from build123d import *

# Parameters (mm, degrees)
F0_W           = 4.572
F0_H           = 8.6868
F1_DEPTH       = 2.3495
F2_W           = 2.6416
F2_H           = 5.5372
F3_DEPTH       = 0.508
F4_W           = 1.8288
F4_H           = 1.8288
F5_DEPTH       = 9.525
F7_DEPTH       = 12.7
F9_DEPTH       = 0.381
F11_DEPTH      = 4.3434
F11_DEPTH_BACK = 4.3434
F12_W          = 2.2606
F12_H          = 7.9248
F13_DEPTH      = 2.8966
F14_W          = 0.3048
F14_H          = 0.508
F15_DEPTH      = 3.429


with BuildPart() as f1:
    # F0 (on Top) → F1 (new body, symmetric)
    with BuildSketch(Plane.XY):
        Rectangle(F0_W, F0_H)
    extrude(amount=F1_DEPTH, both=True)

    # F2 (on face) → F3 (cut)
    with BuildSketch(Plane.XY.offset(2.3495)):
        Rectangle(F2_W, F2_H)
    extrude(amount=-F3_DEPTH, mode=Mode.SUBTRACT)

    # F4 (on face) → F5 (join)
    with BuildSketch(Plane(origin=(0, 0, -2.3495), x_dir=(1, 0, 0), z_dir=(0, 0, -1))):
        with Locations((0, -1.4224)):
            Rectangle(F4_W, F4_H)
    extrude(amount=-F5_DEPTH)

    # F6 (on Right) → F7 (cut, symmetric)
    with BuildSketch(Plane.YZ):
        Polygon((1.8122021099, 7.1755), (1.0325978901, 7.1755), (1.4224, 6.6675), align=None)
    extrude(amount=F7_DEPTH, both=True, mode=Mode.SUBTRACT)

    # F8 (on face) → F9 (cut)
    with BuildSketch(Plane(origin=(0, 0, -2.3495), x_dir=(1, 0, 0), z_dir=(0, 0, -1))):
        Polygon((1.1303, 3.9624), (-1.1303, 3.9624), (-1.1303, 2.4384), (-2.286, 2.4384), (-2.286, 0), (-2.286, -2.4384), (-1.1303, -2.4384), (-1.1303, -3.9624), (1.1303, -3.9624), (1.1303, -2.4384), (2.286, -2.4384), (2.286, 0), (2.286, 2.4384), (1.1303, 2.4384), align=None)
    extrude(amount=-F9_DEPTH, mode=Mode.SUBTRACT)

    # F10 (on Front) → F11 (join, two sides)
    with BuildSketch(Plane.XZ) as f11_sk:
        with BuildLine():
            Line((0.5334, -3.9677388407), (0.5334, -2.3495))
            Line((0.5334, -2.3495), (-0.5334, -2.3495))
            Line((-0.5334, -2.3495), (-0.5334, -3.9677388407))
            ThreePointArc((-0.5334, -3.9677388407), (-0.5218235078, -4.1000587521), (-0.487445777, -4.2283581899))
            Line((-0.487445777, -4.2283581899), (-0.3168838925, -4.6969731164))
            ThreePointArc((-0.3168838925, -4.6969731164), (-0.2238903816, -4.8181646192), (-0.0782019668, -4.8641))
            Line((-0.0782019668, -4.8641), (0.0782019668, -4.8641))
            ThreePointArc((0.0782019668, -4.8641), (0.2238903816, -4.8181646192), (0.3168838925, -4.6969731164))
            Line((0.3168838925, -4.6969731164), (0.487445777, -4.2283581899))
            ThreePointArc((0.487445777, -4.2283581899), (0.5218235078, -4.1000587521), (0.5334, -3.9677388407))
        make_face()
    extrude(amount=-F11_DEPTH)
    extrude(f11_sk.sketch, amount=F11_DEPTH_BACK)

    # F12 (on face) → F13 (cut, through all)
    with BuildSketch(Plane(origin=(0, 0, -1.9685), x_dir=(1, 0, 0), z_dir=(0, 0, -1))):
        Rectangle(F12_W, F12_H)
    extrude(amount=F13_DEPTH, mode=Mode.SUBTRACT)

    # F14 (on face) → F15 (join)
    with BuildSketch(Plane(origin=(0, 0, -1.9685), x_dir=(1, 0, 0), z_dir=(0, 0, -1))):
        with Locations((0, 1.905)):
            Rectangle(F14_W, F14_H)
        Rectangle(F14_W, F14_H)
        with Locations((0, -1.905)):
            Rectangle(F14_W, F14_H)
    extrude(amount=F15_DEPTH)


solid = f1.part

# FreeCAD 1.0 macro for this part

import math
import FreeCAD as App
import Part
import Sketcher

V = App.Vector
Q = App.Units.Quantity

doc = App.newDocument("Part")
body = doc.addObject("PartDesign::Body", "Body")

# Sketch on XY plane
sketch1 = body.newObject("Sketcher::SketchObject", "Sketch")
sketch1.AttachmentSupport = (doc.getObject("XY_Plane"), [""])
sketch1.MapMode = "FlatFace"
sketch1.addGeometry([
    Part.LineSegment(V(-2.3, 4.3, 0), V(-2.3, -4.3, 0)),
    Part.LineSegment(V(-2.3, -4.3, 0), V(2.3, -4.3, 0)),
    Part.LineSegment(V(2.3, -4.3, 0), V(2.3, 4.3, 0)),
    Part.LineSegment(V(2.3, 4.3, 0), V(-2.3, 4.3, 0)),
], False)
sketch1.addConstraint([
    Sketcher.Constraint("Coincident", 0, 2, 1, 1),
    Sketcher.Constraint("Coincident", 1, 2, 2, 1),
    Sketcher.Constraint("Coincident", 2, 2, 3, 1),
    Sketcher.Constraint("Coincident", 3, 2, 0, 1),
    Sketcher.Constraint("Vertical", 0),
    Sketcher.Constraint("Horizontal", 1),
    Sketcher.Constraint("Vertical", 2),
    Sketcher.Constraint("Horizontal", 3),
    Sketcher.Constraint("Symmetric", 0, 2, 2, 2, -1, 1),
    Sketcher.Constraint("DistanceX", 1, 1, 1, 2, Q("0.18 in")),
    Sketcher.Constraint("DistanceY", 0, 2, 0, 1, Q("0.342 in")),
])
pad1 = body.newObject("PartDesign::Pad", "Pad")
pad1.Profile = sketch1
pad1.Length = Q("0.185 in")
pad1.Midplane = True

# Sketch on XY plane
sketch2 = body.newObject("Sketcher::SketchObject", "Sketch001")
sketch2.AttachmentSupport = (doc.getObject("XY_Plane"), [""])
sketch2.MapMode = "FlatFace"
sketch2.AttachmentOffset = App.Placement(V(0, 0, 0.0925 * 25.4), App.Rotation())
sketch2.addGeometry([
    Part.LineSegment(V(-1.3, 2.8, 0), V(-1.3, -2.8, 0)),
    Part.LineSegment(V(-1.3, -2.8, 0), V(1.3, -2.8, 0)),
    Part.LineSegment(V(1.3, -2.8, 0), V(1.3, 2.8, 0)),
    Part.LineSegment(V(1.3, 2.8, 0), V(-1.3, 2.8, 0)),
], False)
sketch2.addConstraint([
    Sketcher.Constraint("Coincident", 0, 2, 1, 1),
    Sketcher.Constraint("Coincident", 1, 2, 2, 1),
    Sketcher.Constraint("Coincident", 2, 2, 3, 1),
    Sketcher.Constraint("Coincident", 3, 2, 0, 1),
    Sketcher.Constraint("Vertical", 0),
    Sketcher.Constraint("Horizontal", 1),
    Sketcher.Constraint("Vertical", 2),
    Sketcher.Constraint("Horizontal", 3),
    Sketcher.Constraint("Symmetric", 0, 2, 2, 2, -1, 1),
    Sketcher.Constraint("DistanceX", 1, 1, 1, 2, Q("0.104 in")),
    Sketcher.Constraint("DistanceY", 0, 2, 0, 1, Q("0.218 in")),
])
pocket1 = body.newObject("PartDesign::Pocket", "Pocket")
pocket1.Profile = sketch2
pocket1.Length = Q("0.02 in")

# Sketch on XY plane
sketch3 = body.newObject("Sketcher::SketchObject", "Sketch002")
sketch3.AttachmentSupport = (doc.getObject("XY_Plane"), [""])
sketch3.MapMode = "FlatFace"
sketch3.AttachmentOffset = App.Placement(V(0, 0, -0.0925 * 25.4), App.Rotation())
sketch3.addGeometry([
    Part.LineSegment(V(-0.9, 0.5, 0), V(-0.9, 2.3, 0)),
    Part.LineSegment(V(-0.9, 2.3, 0), V(0.9, 2.3, 0)),
    Part.LineSegment(V(0.9, 2.3, 0), V(0.9, 0.5, 0)),
    Part.LineSegment(V(0.9, 0.5, 0), V(-0.9, 0.5, 0)),
], False)
sketch3.addConstraint([
    Sketcher.Constraint("Coincident", 0, 2, 1, 1),
    Sketcher.Constraint("Coincident", 1, 2, 2, 1),
    Sketcher.Constraint("Coincident", 2, 2, 3, 1),
    Sketcher.Constraint("Coincident", 3, 2, 0, 1),
    Sketcher.Constraint("Vertical", 0),
    Sketcher.Constraint("Horizontal", 1),
    Sketcher.Constraint("Vertical", 2),
    Sketcher.Constraint("Horizontal", 3),
    Sketcher.Constraint("Equal", 3, 0),
    Sketcher.Constraint("DistanceX", 1, 1, 1, 2, Q("0.072 in")),
    Sketcher.Constraint("DistanceY", -1, 1, 2, 2, Q("0.02 in")),
    Sketcher.Constraint("DistanceX", 0, 2, -1, 1, Q("0.036 in")),
])
pad2 = body.newObject("PartDesign::Pad", "Pad001")
pad2.Profile = sketch3
pad2.Length = Q("0.375 in")

# Sketch on YZ plane
sketch4 = body.newObject("Sketcher::SketchObject", "Sketch003")
sketch4.AttachmentSupport = (doc.getObject("YZ_Plane"), [""])
sketch4.MapMode = "FlatFace"
sketch4.addGeometry([
    Part.LineSegment(V(1.8, 7.2, 0), V(1, 7.2, 0)),
    Part.LineSegment(V(1, 7.2, 0), V(1.4, 6.7, 0)),
    Part.LineSegment(V(1.4, 6.7, 0), V(1.8, 7.2, 0)),
], False)
sketch4.addConstraint([
    Sketcher.Constraint("Coincident", 0, 2, 1, 1),
    Sketcher.Constraint("Coincident", 1, 2, 2, 1),
    Sketcher.Constraint("Coincident", 2, 2, 0, 1),
    Sketcher.Constraint("Horizontal", 0),
    Sketcher.Constraint("Equal", 1, 2),
    Sketcher.Constraint("Angle", 1, Q("-52.5 deg")),
    Sketcher.Constraint("DistanceY", 1, 2, 0, 2, Q("0.02 in")),
    Sketcher.Constraint("DistanceX", -1, 1, 1, 2, Q("0.056 in")),
    Sketcher.Constraint("DistanceY", -1, 1, 0, 2, Q("0.2825 in")),
])
pocket2 = body.newObject("PartDesign::Pocket", "Pocket001")
pocket2.Profile = sketch4
pocket2.Length = Q("1 in")
pocket2.Midplane = True

# Sketch on XY plane
sketch5 = body.newObject("Sketcher::SketchObject", "Sketch004")
sketch5.AttachmentSupport = (doc.getObject("XY_Plane"), [""])
sketch5.MapMode = "FlatFace"
sketch5.AttachmentOffset = App.Placement(V(0, 0, -0.0925 * 25.4), App.Rotation())
sketch5.addGeometry([
    Part.LineSegment(V(1.1, -4, 0), V(-1.1, -4, 0)),  # 0
    Part.LineSegment(V(-1.1, -4, 0), V(-1.1, -2.4, 0)),  # 1
    Part.LineSegment(V(-1.1, -2.4, 0), V(-2.3, -2.4, 0)),  # 2
    Part.LineSegment(V(-2.3, -2.4, 0), V(-2.3, 2.4, 0)),  # 3
    Part.LineSegment(V(-2.3, 2.4, 0), V(-1.1, 2.4, 0)),  # 4
    Part.LineSegment(V(-1.1, 2.4, 0), V(-1.1, 4, 0)),  # 5
    Part.LineSegment(V(-1.1, 4, 0), V(1.1, 4, 0)),  # 6
    Part.LineSegment(V(1.1, 4, 0), V(1.1, 2.4, 0)),  # 7
    Part.LineSegment(V(1.1, 2.4, 0), V(2.3, 2.4, 0)),  # 8
    Part.LineSegment(V(2.3, 2.4, 0), V(2.3, -2.4, 0)),  # 9
    Part.LineSegment(V(2.3, -2.4, 0), V(1.1, -2.4, 0)),  # 10
    Part.LineSegment(V(1.1, -2.4, 0), V(1.1, -4, 0)),  # 11
], False)
sketch5.addConstraint([
    Sketcher.Constraint("Coincident", 0, 2, 1, 1),
    Sketcher.Constraint("Coincident", 1, 2, 2, 1),
    Sketcher.Constraint("Coincident", 2, 2, 3, 1),
    Sketcher.Constraint("Coincident", 3, 2, 4, 1),
    Sketcher.Constraint("Coincident", 4, 2, 5, 1),
    Sketcher.Constraint("Coincident", 5, 2, 6, 1),
    Sketcher.Constraint("Coincident", 6, 2, 7, 1),
    Sketcher.Constraint("Coincident", 7, 2, 8, 1),
    Sketcher.Constraint("Coincident", 8, 2, 9, 1),
    Sketcher.Constraint("Coincident", 9, 2, 10, 1),
    Sketcher.Constraint("Coincident", 10, 2, 11, 1),
    Sketcher.Constraint("Coincident", 11, 2, 0, 1),
    Sketcher.Constraint("Horizontal", 0),
    Sketcher.Constraint("Vertical", 1),
    Sketcher.Constraint("Horizontal", 2),
    Sketcher.Constraint("Vertical", 3),
    Sketcher.Constraint("Horizontal", 4),
    Sketcher.Constraint("Vertical", 5),
    Sketcher.Constraint("Horizontal", 6),
    Sketcher.Constraint("Vertical", 7),
    Sketcher.Constraint("Horizontal", 8),
    Sketcher.Constraint("Vertical", 9),
    Sketcher.Constraint("Horizontal", 10),
    Sketcher.Constraint("Vertical", 11),
    Sketcher.Constraint("Symmetric", 0, 2, 6, 2, -1, 1),
    Sketcher.Constraint("Symmetric", 2, 2, 8, 2, -1, 1),
    Sketcher.Constraint("Symmetric", 4, 2, 10, 2, -1, 1),
    Sketcher.Constraint("Symmetric", 4, 2, 7, 2, -2),
    Sketcher.Constraint("DistanceY", 1, 1, 1, 2, Q("0.06 in")),
    Sketcher.Constraint("DistanceX", 0, 2, 0, 1, Q("0.089 in")),
    Sketcher.Constraint("DistanceY", 3, 1, 3, 2, Q("0.192 in")),
    Sketcher.Constraint("DistanceX", 2, 2, -1, 1, Q("0.09 in")),
])
pocket3 = body.newObject("PartDesign::Pocket", "Pocket002")
pocket3.Profile = sketch5
pocket3.Length = Q("0.015 in")
pocket3.Reversed = True

# Sketch on XZ plane
sketch6 = body.newObject("Sketcher::SketchObject", "Sketch005")
sketch6.AttachmentSupport = (doc.getObject("XZ_Plane"), [""])
sketch6.MapMode = "FlatFace"
sketch6.addGeometry([
    Part.LineSegment(V(0.53, -3.97, 0), V(0.53, -2.35, 0)),  # 0
    Part.LineSegment(V(0.53, -2.35, 0), V(-0.53, -2.35, 0)),  # 1
    Part.LineSegment(V(-0.53, -2.35, 0), V(-0.53, -3.97, 0)),  # 2
    Part.ArcOfCircle(Part.Circle(V(0.23, -3.97, 0), V(0, 0, 1), 0.76), math.radians(180), math.radians(200)),  # 3
    Part.LineSegment(V(-0.49, -4.23, 0), V(-0.32, -4.7, 0)),  # 4
    Part.ArcOfCircle(Part.Circle(V(-0.08, -4.61, 0), V(0, 0, 1), 0.25), math.radians(-160), math.radians(-90)),  # 5
    Part.LineSegment(V(-0.08, -4.86, 0), V(0.08, -4.86, 0)),  # 6
    Part.ArcOfCircle(Part.Circle(V(0.08, -4.61, 0), V(0, 0, 1), 0.25), math.radians(-90), math.radians(-20)),  # 7
    Part.LineSegment(V(0.32, -4.7, 0), V(0.49, -4.23, 0)),  # 8
    Part.ArcOfCircle(Part.Circle(V(-0.23, -3.97, 0), V(0, 0, 1), 0.76), math.radians(-20), math.radians(0)),  # 9
], False)
sketch6.addConstraint([
    Sketcher.Constraint("Coincident", 0, 2, 1, 1),
    Sketcher.Constraint("Coincident", 1, 2, 2, 1),
    Sketcher.Constraint("Tangent", 2, 2, 3, 1),
    Sketcher.Constraint("Tangent", 3, 2, 4, 1),
    Sketcher.Constraint("Tangent", 4, 2, 5, 1),
    Sketcher.Constraint("Tangent", 5, 2, 6, 1),
    Sketcher.Constraint("Tangent", 6, 2, 7, 1),
    Sketcher.Constraint("Tangent", 7, 2, 8, 1),
    Sketcher.Constraint("Tangent", 8, 2, 9, 1),
    Sketcher.Constraint("Tangent", 9, 2, 0, 1),
    Sketcher.Constraint("Vertical", 0),
    Sketcher.Constraint("Horizontal", 1),
    Sketcher.Constraint("Vertical", 2),
    Sketcher.Constraint("Horizontal", 6),
    Sketcher.Constraint("Equal", 5, 7),
    Sketcher.Constraint("Equal", 3, 9),
    Sketcher.Constraint("Symmetric", 3, 3, 9, 3, -2),
    Sketcher.Constraint("Horizontal", 4, 2, 7, 2),
    Sketcher.Constraint("Radius", 3, Q("0.03 in")),
    Sketcher.Constraint("Radius", 5, Q("0.01 in")),
    Sketcher.Constraint("Angle", 4, Q("-70 deg")),
    Sketcher.Constraint("DistanceX", 1, 2, 1, 1, Q("0.042 in")),
    Sketcher.Constraint("DistanceY", 7, 3, 0, 2, Q("0.089 in")),
    Sketcher.Constraint("DistanceY", 5, 3, -1, 1, Q("0.1815 in")),
    Sketcher.Constraint("DistanceY", 0, 1, 0, 2, 1.618239),
])
pad3 = body.newObject("PartDesign::Pad", "Pad002")
pad3.Profile = sketch6
pad3.Type = "TwoLengths"
pad3.Length = Q("0.171 in")
pad3.Length2 = Q("0.171 in")
pad3.Reversed = True

# Sketch on XY plane
sketch7 = body.newObject("Sketcher::SketchObject", "Sketch006")
sketch7.AttachmentSupport = (doc.getObject("XY_Plane"), [""])
sketch7.MapMode = "FlatFace"
sketch7.AttachmentOffset = App.Placement(V(0, 0, -0.0775 * 25.4), App.Rotation())
sketch7.addGeometry([
    Part.LineSegment(V(-1.1, -4, 0), V(-1.1, 4, 0)),
    Part.LineSegment(V(-1.1, 4, 0), V(1.1, 4, 0)),
    Part.LineSegment(V(1.1, 4, 0), V(1.1, -4, 0)),
    Part.LineSegment(V(1.1, -4, 0), V(-1.1, -4, 0)),
], False)
sketch7.addConstraint([
    Sketcher.Constraint("Coincident", 0, 2, 1, 1),
    Sketcher.Constraint("Coincident", 1, 2, 2, 1),
    Sketcher.Constraint("Coincident", 2, 2, 3, 1),
    Sketcher.Constraint("Coincident", 3, 2, 0, 1),
    Sketcher.Constraint("Vertical", 0),
    Sketcher.Constraint("Horizontal", 1),
    Sketcher.Constraint("Vertical", 2),
    Sketcher.Constraint("Horizontal", 3),
    Sketcher.Constraint("Symmetric", 0, 2, 2, 2, -1, 1),
    Sketcher.Constraint("DistanceX", 1, 1, 1, 2, Q("0.089 in")),
    Sketcher.Constraint("DistanceY", 0, 1, 0, 2, Q("0.312 in")),
])
pocket4 = body.newObject("PartDesign::Pocket", "Pocket003")
pocket4.Profile = sketch7
pocket4.Type = "ThroughAll"

# Sketch on XY plane
sketch8 = body.newObject("Sketcher::SketchObject", "Sketch007")
sketch8.AttachmentSupport = (doc.getObject("XY_Plane"), [""])
sketch8.MapMode = "FlatFace"
sketch8.AttachmentOffset = App.Placement(V(0, 0, -0.0775 * 25.4), App.Rotation())
sketch8.addGeometry([
    Part.LineSegment(V(-0.15, -2.16, 0), V(-0.15, -1.65, 0)),  # 0
    Part.LineSegment(V(-0.15, -1.65, 0), V(0.15, -1.65, 0)),  # 1
    Part.LineSegment(V(0.15, -1.65, 0), V(0.15, -2.16, 0)),  # 2
    Part.LineSegment(V(0.15, -2.16, 0), V(-0.15, -2.16, 0)),  # 3
    Part.LineSegment(V(-0.15, -0.25, 0), V(-0.15, 0.25, 0)),  # 4
    Part.LineSegment(V(-0.15, 0.25, 0), V(0.15, 0.25, 0)),  # 5
    Part.LineSegment(V(0.15, 0.25, 0), V(0.15, -0.25, 0)),  # 6
    Part.LineSegment(V(0.15, -0.25, 0), V(-0.15, -0.25, 0)),  # 7
    Part.LineSegment(V(-0.15, 1.65, 0), V(-0.15, 2.16, 0)),  # 8
    Part.LineSegment(V(-0.15, 2.16, 0), V(0.15, 2.16, 0)),  # 9
    Part.LineSegment(V(0.15, 2.16, 0), V(0.15, 1.65, 0)),  # 10
    Part.LineSegment(V(0.15, 1.65, 0), V(-0.15, 1.65, 0)),  # 11
], False)
sketch8.addConstraint([
    Sketcher.Constraint("Coincident", 0, 2, 1, 1),
    Sketcher.Constraint("Coincident", 1, 2, 2, 1),
    Sketcher.Constraint("Coincident", 2, 2, 3, 1),
    Sketcher.Constraint("Coincident", 3, 2, 0, 1),
    Sketcher.Constraint("Coincident", 4, 2, 5, 1),
    Sketcher.Constraint("Coincident", 5, 2, 6, 1),
    Sketcher.Constraint("Coincident", 6, 2, 7, 1),
    Sketcher.Constraint("Coincident", 7, 2, 4, 1),
    Sketcher.Constraint("Coincident", 8, 2, 9, 1),
    Sketcher.Constraint("Coincident", 9, 2, 10, 1),
    Sketcher.Constraint("Coincident", 10, 2, 11, 1),
    Sketcher.Constraint("Coincident", 11, 2, 8, 1),
    Sketcher.Constraint("Vertical", 0),
    Sketcher.Constraint("Horizontal", 1),
    Sketcher.Constraint("Vertical", 2),
    Sketcher.Constraint("Horizontal", 3),
    Sketcher.Constraint("Vertical", 4),
    Sketcher.Constraint("Horizontal", 5),
    Sketcher.Constraint("Vertical", 6),
    Sketcher.Constraint("Horizontal", 7),
    Sketcher.Constraint("Vertical", 8),
    Sketcher.Constraint("Horizontal", 9),
    Sketcher.Constraint("Vertical", 10),
    Sketcher.Constraint("Horizontal", 11),
    Sketcher.Constraint("Symmetric", 4, 2, 6, 2, -1, 1),
    Sketcher.Constraint("Symmetric", 2, 2, 8, 2, -1, 1),
    Sketcher.Constraint("Symmetric", 0, 2, 10, 2, -1, 1),
    Sketcher.Constraint("Vertical", 3, 2, 4, 2),
    Sketcher.Constraint("Vertical", 2, 2, 5, 2),
    Sketcher.Constraint("Equal", 2, 4),
    Sketcher.Constraint("DistanceY", 0, 1, 0, 2, Q("0.02 in")),
    Sketcher.Constraint("DistanceX", 1, 1, 1, 2, Q("0.012 in")),
    Sketcher.Constraint("DistanceY", 0, 2, 8, 2, Q("0.15 in")),
])
pad4 = body.newObject("PartDesign::Pad", "Pad003")
pad4.Profile = sketch8
pad4.Length = Q("0.135 in")
pad4.Reversed = True

doc.recompute()
